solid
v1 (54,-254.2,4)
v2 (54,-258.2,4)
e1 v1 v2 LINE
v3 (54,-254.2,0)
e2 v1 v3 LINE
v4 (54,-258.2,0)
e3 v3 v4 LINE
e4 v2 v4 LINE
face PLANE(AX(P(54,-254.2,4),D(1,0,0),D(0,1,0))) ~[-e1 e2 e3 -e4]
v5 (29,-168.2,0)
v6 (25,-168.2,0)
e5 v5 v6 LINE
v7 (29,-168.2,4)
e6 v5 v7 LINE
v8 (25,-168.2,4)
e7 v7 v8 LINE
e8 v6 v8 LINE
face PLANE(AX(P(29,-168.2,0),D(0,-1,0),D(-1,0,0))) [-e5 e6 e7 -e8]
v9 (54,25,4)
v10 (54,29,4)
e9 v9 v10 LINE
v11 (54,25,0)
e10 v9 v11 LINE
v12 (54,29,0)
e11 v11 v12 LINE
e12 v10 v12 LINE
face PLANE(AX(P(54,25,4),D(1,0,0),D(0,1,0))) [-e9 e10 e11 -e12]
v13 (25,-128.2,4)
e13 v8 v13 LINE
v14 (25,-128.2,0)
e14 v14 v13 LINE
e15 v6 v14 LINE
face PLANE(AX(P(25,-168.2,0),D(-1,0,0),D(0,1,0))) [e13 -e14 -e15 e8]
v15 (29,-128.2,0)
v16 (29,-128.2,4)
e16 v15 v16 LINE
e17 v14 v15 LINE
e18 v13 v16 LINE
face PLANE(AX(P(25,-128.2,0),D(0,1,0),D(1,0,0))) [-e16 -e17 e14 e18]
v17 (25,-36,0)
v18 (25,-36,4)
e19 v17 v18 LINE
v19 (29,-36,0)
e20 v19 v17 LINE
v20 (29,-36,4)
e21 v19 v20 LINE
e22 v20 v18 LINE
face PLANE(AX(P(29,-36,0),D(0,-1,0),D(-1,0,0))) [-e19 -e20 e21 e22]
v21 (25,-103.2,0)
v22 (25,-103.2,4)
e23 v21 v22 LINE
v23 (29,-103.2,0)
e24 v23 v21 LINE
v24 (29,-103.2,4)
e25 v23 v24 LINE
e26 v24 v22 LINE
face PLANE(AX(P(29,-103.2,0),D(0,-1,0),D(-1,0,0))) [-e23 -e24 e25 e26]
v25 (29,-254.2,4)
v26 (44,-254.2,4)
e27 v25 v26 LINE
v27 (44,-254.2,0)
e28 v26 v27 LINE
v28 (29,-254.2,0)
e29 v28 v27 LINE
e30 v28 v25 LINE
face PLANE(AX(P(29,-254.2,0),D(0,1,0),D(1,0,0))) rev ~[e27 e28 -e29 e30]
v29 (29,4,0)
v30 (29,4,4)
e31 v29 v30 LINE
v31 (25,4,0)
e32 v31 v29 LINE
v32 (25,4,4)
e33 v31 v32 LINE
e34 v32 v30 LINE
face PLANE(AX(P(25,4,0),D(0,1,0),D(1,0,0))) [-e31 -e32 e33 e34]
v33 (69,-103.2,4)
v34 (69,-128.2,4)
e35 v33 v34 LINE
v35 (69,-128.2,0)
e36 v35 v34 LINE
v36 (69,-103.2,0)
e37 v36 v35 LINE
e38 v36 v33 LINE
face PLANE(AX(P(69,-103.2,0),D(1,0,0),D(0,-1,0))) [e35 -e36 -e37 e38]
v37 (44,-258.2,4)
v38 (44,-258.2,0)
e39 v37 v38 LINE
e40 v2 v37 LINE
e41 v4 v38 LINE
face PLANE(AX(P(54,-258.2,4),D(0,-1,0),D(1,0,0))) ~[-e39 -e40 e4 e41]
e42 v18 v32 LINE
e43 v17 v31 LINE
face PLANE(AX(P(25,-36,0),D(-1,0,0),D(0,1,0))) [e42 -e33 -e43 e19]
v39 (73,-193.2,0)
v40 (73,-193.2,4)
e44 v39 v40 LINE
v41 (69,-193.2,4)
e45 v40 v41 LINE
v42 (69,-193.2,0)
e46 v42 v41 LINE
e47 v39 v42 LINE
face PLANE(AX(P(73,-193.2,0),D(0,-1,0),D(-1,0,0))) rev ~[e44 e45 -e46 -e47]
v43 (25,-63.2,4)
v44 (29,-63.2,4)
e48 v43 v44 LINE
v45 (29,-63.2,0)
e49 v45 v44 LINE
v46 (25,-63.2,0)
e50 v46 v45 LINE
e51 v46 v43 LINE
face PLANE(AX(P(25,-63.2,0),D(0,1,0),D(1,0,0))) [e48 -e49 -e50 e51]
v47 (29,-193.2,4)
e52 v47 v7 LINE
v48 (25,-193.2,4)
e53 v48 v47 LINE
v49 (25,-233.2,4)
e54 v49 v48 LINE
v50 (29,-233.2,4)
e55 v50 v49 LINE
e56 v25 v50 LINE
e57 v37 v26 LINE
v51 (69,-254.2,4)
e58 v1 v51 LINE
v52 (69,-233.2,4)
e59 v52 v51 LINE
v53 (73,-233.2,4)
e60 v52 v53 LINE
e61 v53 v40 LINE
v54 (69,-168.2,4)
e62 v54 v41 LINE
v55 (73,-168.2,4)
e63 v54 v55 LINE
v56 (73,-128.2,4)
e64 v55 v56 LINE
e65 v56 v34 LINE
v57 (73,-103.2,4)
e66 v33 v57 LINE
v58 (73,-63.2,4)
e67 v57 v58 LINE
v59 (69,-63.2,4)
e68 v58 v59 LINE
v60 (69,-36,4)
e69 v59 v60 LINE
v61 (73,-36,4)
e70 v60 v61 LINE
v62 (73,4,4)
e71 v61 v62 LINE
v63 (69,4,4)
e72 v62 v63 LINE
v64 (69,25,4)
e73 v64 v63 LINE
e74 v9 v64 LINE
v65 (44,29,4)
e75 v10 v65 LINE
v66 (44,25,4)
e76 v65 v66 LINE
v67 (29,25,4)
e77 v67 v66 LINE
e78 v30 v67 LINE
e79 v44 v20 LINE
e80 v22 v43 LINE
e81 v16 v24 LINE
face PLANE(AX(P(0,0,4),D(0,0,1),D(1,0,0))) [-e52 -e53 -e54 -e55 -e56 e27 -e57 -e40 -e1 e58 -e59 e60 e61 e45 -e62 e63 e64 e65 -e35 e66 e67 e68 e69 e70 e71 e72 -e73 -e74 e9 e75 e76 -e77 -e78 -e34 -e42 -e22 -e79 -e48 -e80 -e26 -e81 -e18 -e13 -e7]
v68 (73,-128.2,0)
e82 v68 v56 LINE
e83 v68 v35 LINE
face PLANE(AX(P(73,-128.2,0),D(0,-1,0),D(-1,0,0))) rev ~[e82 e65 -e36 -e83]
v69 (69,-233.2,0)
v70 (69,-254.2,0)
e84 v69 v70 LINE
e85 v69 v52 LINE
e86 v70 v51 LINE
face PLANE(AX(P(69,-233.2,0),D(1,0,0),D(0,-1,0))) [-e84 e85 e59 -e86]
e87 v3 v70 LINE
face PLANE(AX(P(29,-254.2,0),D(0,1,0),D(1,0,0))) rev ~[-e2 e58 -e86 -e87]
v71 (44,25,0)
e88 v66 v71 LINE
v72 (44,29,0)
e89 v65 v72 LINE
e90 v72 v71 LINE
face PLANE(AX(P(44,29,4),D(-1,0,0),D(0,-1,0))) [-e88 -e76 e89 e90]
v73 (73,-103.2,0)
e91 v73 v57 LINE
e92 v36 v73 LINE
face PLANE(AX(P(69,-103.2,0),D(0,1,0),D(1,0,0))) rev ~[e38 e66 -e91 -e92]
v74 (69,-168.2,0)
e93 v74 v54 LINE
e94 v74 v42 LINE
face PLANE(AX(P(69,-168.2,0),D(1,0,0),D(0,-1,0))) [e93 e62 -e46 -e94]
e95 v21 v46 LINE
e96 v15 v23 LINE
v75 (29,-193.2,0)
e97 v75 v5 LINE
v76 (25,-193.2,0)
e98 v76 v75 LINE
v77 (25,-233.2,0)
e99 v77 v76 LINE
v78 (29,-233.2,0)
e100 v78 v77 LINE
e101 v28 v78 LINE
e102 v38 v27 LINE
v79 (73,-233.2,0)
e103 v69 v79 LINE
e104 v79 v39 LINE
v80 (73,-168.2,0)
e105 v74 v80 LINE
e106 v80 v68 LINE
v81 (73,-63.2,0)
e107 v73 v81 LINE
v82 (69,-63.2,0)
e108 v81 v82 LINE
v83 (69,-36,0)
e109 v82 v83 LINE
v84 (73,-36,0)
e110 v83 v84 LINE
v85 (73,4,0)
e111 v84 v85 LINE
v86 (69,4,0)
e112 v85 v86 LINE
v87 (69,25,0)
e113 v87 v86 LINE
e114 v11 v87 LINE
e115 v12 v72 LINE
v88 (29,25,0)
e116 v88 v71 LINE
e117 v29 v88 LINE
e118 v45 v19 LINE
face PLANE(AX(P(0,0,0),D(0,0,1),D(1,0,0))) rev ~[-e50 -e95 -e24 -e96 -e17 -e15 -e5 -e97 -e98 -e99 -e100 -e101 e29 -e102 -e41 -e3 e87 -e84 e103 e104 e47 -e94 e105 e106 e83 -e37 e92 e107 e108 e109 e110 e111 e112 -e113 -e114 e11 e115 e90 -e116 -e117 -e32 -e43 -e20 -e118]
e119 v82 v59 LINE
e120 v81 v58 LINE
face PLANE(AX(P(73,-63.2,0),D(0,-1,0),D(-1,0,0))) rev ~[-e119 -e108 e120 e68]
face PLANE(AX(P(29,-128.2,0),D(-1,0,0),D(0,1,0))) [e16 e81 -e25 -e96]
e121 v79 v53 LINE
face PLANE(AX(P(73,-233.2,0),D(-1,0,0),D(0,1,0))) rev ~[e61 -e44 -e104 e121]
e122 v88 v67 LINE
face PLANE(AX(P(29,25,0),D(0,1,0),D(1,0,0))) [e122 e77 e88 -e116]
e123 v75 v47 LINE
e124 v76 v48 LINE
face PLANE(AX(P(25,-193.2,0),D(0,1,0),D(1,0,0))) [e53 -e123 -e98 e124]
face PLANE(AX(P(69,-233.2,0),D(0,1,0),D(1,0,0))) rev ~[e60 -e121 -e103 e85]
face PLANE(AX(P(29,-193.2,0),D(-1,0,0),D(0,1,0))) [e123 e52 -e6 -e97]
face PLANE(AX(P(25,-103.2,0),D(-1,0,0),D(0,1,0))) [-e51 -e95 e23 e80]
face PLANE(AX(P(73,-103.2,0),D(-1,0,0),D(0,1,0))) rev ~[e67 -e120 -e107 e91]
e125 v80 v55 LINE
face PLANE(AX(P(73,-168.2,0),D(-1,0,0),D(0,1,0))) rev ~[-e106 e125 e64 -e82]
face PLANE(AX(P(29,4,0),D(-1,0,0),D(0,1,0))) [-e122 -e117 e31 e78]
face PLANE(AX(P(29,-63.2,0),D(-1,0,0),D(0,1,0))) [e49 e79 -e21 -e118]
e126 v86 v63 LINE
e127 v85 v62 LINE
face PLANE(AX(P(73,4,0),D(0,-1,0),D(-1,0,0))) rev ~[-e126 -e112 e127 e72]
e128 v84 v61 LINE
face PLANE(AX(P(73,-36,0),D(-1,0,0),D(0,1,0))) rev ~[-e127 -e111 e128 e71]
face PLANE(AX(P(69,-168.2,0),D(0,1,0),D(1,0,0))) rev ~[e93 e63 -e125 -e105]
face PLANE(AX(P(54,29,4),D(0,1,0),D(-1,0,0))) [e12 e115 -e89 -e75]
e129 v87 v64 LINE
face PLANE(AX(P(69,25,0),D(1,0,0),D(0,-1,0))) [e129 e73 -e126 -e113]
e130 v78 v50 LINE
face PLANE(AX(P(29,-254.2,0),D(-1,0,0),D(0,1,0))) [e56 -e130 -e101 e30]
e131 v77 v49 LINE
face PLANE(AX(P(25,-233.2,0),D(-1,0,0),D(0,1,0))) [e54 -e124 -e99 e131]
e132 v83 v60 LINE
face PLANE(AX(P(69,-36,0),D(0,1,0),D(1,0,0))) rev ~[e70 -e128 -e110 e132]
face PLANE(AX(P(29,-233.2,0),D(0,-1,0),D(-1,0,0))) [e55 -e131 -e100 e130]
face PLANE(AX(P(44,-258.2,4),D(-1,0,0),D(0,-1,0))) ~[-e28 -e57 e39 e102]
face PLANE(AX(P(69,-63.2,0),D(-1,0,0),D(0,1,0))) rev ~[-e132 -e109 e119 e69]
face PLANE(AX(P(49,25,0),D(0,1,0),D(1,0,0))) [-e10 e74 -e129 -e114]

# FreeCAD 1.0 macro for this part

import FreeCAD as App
import Part
import Sketcher
from FreeCAD import Vector
Q = App.Units.Quantity

doc = App.newDocument("Part")
params = doc.addObject("Spreadsheet::Sheet", "Params")
for row, (alias, value) in enumerate([
    ("sketch1_width", "40 mm"),
    ("sketch1_width2", "4 mm"),
    ("sketch1_height", "21 mm"),
    ("sketch1_height2", "25 mm"),
    ("sketch1_height3", "27.2 mm"),
    ("pad1_length", "4 mm"),
    ("sketch2_width", "10 mm"),
    ("sketch2_height", "4 mm"),
    ("pad2_length", "4 mm"),
], start=1):
    params.set(f"A{row}", alias)
    params.set(f"B{row}", "=" + value)
    params.setAlias(f"B{row}", alias)

body = doc.addObject("PartDesign::Body", "Body")

# Sketch on XY plane
sketch1 = body.newObject("Sketcher::SketchObject", "Sketch")
sketch1.AttachmentSupport = (doc.getObject("XY_Plane"), [""])
sketch1.MapMode = "FlatFace"
sketch1.addGeometry(Part.LineSegment(Vector(29, -233.2, 0), Vector(29, -254.2, 0)), False)
sketch1.addGeometry(Part.LineSegment(Vector(29, -254.2, 0), Vector(69, -254.2, 0)), False)
sketch1.addGeometry(Part.LineSegment(Vector(69, -254.2, 0), Vector(69, -233.2, 0)), False)
sketch1.addGeometry(Part.LineSegment(Vector(69, -233.2, 0), Vector(73, -233.2, 0)), False)
sketch1.addGeometry(Part.LineSegment(Vector(73, -233.2, 0), Vector(73, -193.2, 0)), False)
sketch1.addGeometry(Part.LineSegment(Vector(73, -193.2, 0), Vector(69, -193.2, 0)), False)
sketch1.addGeometry(Part.LineSegment(Vector(69, -193.2, 0), Vector(69, -168.2, 0)), False)
sketch1.addGeometry(Part.LineSegment(Vector(69, -168.2, 0), Vector(73, -168.2, 0)), False)
sketch1.addGeometry(Part.LineSegment(Vector(73, -168.2, 0), Vector(73, -128.2, 0)), False)
sketch1.addGeometry(Part.LineSegment(Vector(73, -128.2, 0), Vector(69, -128.2, 0)), False)
sketch1.addGeometry(Part.LineSegment(Vector(69, -128.2, 0), Vector(69, -103.2, 0)), False)
sketch1.addGeometry(Part.LineSegment(Vector(69, -103.2, 0), Vector(73, -103.2, 0)), False)
sketch1.addGeometry(Part.LineSegment(Vector(73, -103.2, 0), Vector(73, -63.2, 0)), False)
sketch1.addGeometry(Part.LineSegment(Vector(73, -63.2, 0), Vector(69, -63.2, 0)), False)
sketch1.addGeometry(Part.LineSegment(Vector(69, -63.2, 0), Vector(69, -36, 0)), False)
sketch1.addGeometry(Part.LineSegment(Vector(69, -36, 0), Vector(73, -36, 0)), False)
sketch1.addGeometry(Part.LineSegment(Vector(73, -36, 0), Vector(73, 4, 0)), False)
sketch1.addGeometry(Part.LineSegment(Vector(73, 4, 0), Vector(69, 4, 0)), False)
sketch1.addGeometry(Part.LineSegment(Vector(69, 4, 0), Vector(69, 25, 0)), False)
sketch1.addGeometry(Part.LineSegment(Vector(69, 25, 0), Vector(29, 25, 0)), False)
sketch1.addGeometry(Part.LineSegment(Vector(29, 25, 0), Vector(29, 4, 0)), False)
sketch1.addGeometry(Part.LineSegment(Vector(29, 4, 0), Vector(25, 4, 0)), False)
sketch1.addGeometry(Part.LineSegment(Vector(25, 4, 0), Vector(25, -36, 0)), False)
sketch1.addGeometry(Part.LineSegment(Vector(25, -36, 0), Vector(29, -36, 0)), False)
sketch1.addGeometry(Part.LineSegment(Vector(29, -36, 0), Vector(29, -63.2, 0)), False)
sketch1.addGeometry(Part.LineSegment(Vector(29, -63.2, 0), Vector(25, -63.2, 0)), False)
sketch1.addGeometry(Part.LineSegment(Vector(25, -63.2, 0), Vector(25, -103.2, 0)), False)
sketch1.addGeometry(Part.LineSegment(Vector(25, -103.2, 0), Vector(29, -103.2, 0)), False)
sketch1.addGeometry(Part.LineSegment(Vector(29, -103.2, 0), Vector(29, -128.2, 0)), False)
sketch1.addGeometry(Part.LineSegment(Vector(29, -128.2, 0), Vector(25, -128.2, 0)), False)
sketch1.addGeometry(Part.LineSegment(Vector(25, -128.2, 0), Vector(25, -168.2, 0)), False)
sketch1.addGeometry(Part.LineSegment(Vector(25, -168.2, 0), Vector(29, -168.2, 0)), False)
sketch1.addGeometry(Part.LineSegment(Vector(29, -168.2, 0), Vector(29, -193.2, 0)), False)
sketch1.addGeometry(Part.LineSegment(Vector(29, -193.2, 0), Vector(25, -193.2, 0)), False)
sketch1.addGeometry(Part.LineSegment(Vector(25, -193.2, 0), Vector(25, -233.2, 0)), False)
sketch1.addGeometry(Part.LineSegment(Vector(25, -233.2, 0), Vector(29, -233.2, 0)), False)
sketch1.addConstraint(Sketcher.Constraint("Coincident", 0, 2, 1, 1))
sketch1.addConstraint(Sketcher.Constraint("Coincident", 1, 2, 2, 1))
sketch1.addConstraint(Sketcher.Constraint("Coincident", 2, 2, 3, 1))
sketch1.addConstraint(Sketcher.Constraint("Coincident", 3, 2, 4, 1))
sketch1.addConstraint(Sketcher.Constraint("Coincident", 4, 2, 5, 1))
sketch1.addConstraint(Sketcher.Constraint("Coincident", 5, 2, 6, 1))
sketch1.addConstraint(Sketcher.Constraint("Coincident", 6, 2, 7, 1))
sketch1.addConstraint(Sketcher.Constraint("Coincident", 7, 2, 8, 1))
sketch1.addConstraint(Sketcher.Constraint("Coincident", 8, 2, 9, 1))
sketch1.addConstraint(Sketcher.Constraint("Coincident", 9, 2, 10, 1))
sketch1.addConstraint(Sketcher.Constraint("Coincident", 10, 2, 11, 1))
sketch1.addConstraint(Sketcher.Constraint("Coincident", 11, 2, 12, 1))
sketch1.addConstraint(Sketcher.Constraint("Coincident", 12, 2, 13, 1))
sketch1.addConstraint(Sketcher.Constraint("Coincident", 13, 2, 14, 1))
sketch1.addConstraint(Sketcher.Constraint("Coincident", 14, 2, 15, 1))
sketch1.addConstraint(Sketcher.Constraint("Coincident", 15, 2, 16, 1))
sketch1.addConstraint(Sketcher.Constraint("Coincident", 16, 2, 17, 1))
sketch1.addConstraint(Sketcher.Constraint("Coincident", 17, 2, 18, 1))
sketch1.addConstraint(Sketcher.Constraint("Coincident", 18, 2, 19, 1))
sketch1.addConstraint(Sketcher.Constraint("Coincident", 19, 2, 20, 1))
sketch1.addConstraint(Sketcher.Constraint("Coincident", 20, 2, 21, 1))
sketch1.addConstraint(Sketcher.Constraint("Coincident", 21, 2, 22, 1))
sketch1.addConstraint(Sketcher.Constraint("Coincident", 22, 2, 23, 1))
sketch1.addConstraint(Sketcher.Constraint("Coincident", 23, 2, 24, 1))
sketch1.addConstraint(Sketcher.Constraint("Coincident", 24, 2, 25, 1))
sketch1.addConstraint(Sketcher.Constraint("Coincident", 25, 2, 26, 1))
sketch1.addConstraint(Sketcher.Constraint("Coincident", 26, 2, 27, 1))
sketch1.addConstraint(Sketcher.Constraint("Coincident", 27, 2, 28, 1))
sketch1.addConstraint(Sketcher.Constraint("Coincident", 28, 2, 29, 1))
sketch1.addConstraint(Sketcher.Constraint("Coincident", 29, 2, 30, 1))
sketch1.addConstraint(Sketcher.Constraint("Coincident", 30, 2, 31, 1))
sketch1.addConstraint(Sketcher.Constraint("Coincident", 31, 2, 32, 1))
sketch1.addConstraint(Sketcher.Constraint("Coincident", 32, 2, 33, 1))
sketch1.addConstraint(Sketcher.Constraint("Coincident", 33, 2, 34, 1))
sketch1.addConstraint(Sketcher.Constraint("Coincident", 34, 2, 35, 1))
sketch1.addConstraint(Sketcher.Constraint("Coincident", 35, 2, 0, 1))
sketch1.addConstraint(Sketcher.Constraint("Vertical", 0))
sketch1.addConstraint(Sketcher.Constraint("Horizontal", 1))
sketch1.addConstraint(Sketcher.Constraint("Vertical", 2))
sketch1.addConstraint(Sketcher.Constraint("Horizontal", 3))
sketch1.addConstraint(Sketcher.Constraint("Vertical", 4))
sketch1.addConstraint(Sketcher.Constraint("Horizontal", 5))
sketch1.addConstraint(Sketcher.Constraint("Vertical", 6))
sketch1.addConstraint(Sketcher.Constraint("Horizontal", 7))
sketch1.addConstraint(Sketcher.Constraint("Vertical", 8))
sketch1.addConstraint(Sketcher.Constraint("Horizontal", 9))
sketch1.addConstraint(Sketcher.Constraint("Vertical", 10))
sketch1.addConstraint(Sketcher.Constraint("Horizontal", 11))
sketch1.addConstraint(Sketcher.Constraint("Vertical", 12))
sketch1.addConstraint(Sketcher.Constraint("Horizontal", 13))
sketch1.addConstraint(Sketcher.Constraint("Vertical", 14))
sketch1.addConstraint(Sketcher.Constraint("Horizontal", 15))
sketch1.addConstraint(Sketcher.Constraint("Vertical", 16))
sketch1.addConstraint(Sketcher.Constraint("Horizontal", 17))
sketch1.addConstraint(Sketcher.Constraint("Vertical", 18))
sketch1.addConstraint(Sketcher.Constraint("Horizontal", 19))
sketch1.addConstraint(Sketcher.Constraint("Vertical", 20))
sketch1.addConstraint(Sketcher.Constraint("Horizontal", 21))
sketch1.addConstraint(Sketcher.Constraint("Vertical", 22))
sketch1.addConstraint(Sketcher.Constraint("Horizontal", 23))
sketch1.addConstraint(Sketcher.Constraint("Vertical", 24))
sketch1.addConstraint(Sketcher.Constraint("Horizontal", 25))
sketch1.addConstraint(Sketcher.Constraint("Vertical", 26))
sketch1.addConstraint(Sketcher.Constraint("Horizontal", 27))
sketch1.addConstraint(Sketcher.Constraint("Vertical", 28))
sketch1.addConstraint(Sketcher.Constraint("Horizontal", 29))
sketch1.addConstraint(Sketcher.Constraint("Vertical", 30))
sketch1.addConstraint(Sketcher.Constraint("Horizontal", 31))
sketch1.addConstraint(Sketcher.Constraint("Vertical", 32))
sketch1.addConstraint(Sketcher.Constraint("Horizontal", 33))
sketch1.addConstraint(Sketcher.Constraint("Vertical", 34))
sketch1.addConstraint(Sketcher.Constraint("Horizontal", 35))
sketch1.addConstraint(Sketcher.Constraint("Horizontal", 17, 2, 20, 2))
sketch1.addConstraint(Sketcher.Constraint("Horizontal", 15, 2, 22, 2))
sketch1.addConstraint(Sketcher.Constraint("Horizontal", 13, 2, 24, 2))
sketch1.addConstraint(Sketcher.Constraint("Horizontal", 11, 2, 26, 2))
sketch1.addConstraint(Sketcher.Constraint("Horizontal", 9, 2, 28, 2))
sketch1.addConstraint(Sketcher.Constraint("Horizontal", 7, 2, 30, 2))
sketch1.addConstraint(Sketcher.Constraint("Horizontal", 5, 2, 32, 2))
sketch1.addConstraint(Sketcher.Constraint("Horizontal", 3, 2, 34, 2))
sketch1.addConstraint(Sketcher.Constraint("Vertical", 2, 2, 5, 2))
sketch1.addConstraint(Sketcher.Constraint("Vertical", 4, 2, 7, 2))
sketch1.addConstraint(Sketcher.Constraint("Vertical", 6, 2, 9, 2))
sketch1.addConstraint(Sketcher.Constraint("Vertical", 8, 2, 11, 2))
sketch1.addConstraint(Sketcher.Constraint("Vertical", 10, 2, 13, 2))
sketch1.addConstraint(Sketcher.Constraint("Vertical", 12, 2, 15, 2))
sketch1.addConstraint(Sketcher.Constraint("Vertical", 14, 2, 17, 2))
sketch1.addConstraint(Sketcher.Constraint("Vertical", 0, 2, 19, 2))
sketch1.addConstraint(Sketcher.Constraint("Vertical", 20, 2, 23, 2))
sketch1.addConstraint(Sketcher.Constraint("Vertical", 22, 2, 25, 2))
sketch1.addConstraint(Sketcher.Constraint("Vertical", 24, 2, 27, 2))
sketch1.addConstraint(Sketcher.Constraint("Vertical", 26, 2, 29, 2))
sketch1.addConstraint(Sketcher.Constraint("Vertical", 28, 2, 31, 2))
sketch1.addConstraint(Sketcher.Constraint("Vertical", 30, 2, 33, 2))
sketch1.addConstraint(Sketcher.Constraint("Equal", 17, 21))
sketch1.addConstraint(Sketcher.Constraint("Equal", 19, 4))
sketch1.addConstraint(Sketcher.Constraint("Equal", 4, 8))
sketch1.addConstraint(Sketcher.Constraint("Equal", 6, 10))
sketch1.addConstraint(Sketcher.Constraint("Equal", 8, 12))
sketch1.addConstraint(Sketcher.Constraint("Equal", 12, 16))
sketch1.addConstraint(Sketcher.Constraint("Equal", 2, 18))
sketch1.addConstraint(Sketcher.Constraint("DistanceX", 1, 1, 1, 2, Q("40 mm")))
sketch1.addConstraint(Sketcher.Constraint("DistanceX", 3, 1, 3, 2, Q("4 mm")))
sketch1.addConstraint(Sketcher.Constraint("DistanceY", -1, 1, 16, 2, Q("4 mm")))
sketch1.addConstraint(Sketcher.Constraint("DistanceY", 0, 2, 0, 1, Q("21 mm")))
sketch1.addConstraint(Sketcher.Constraint("DistanceY", 6, 1, 6, 2, Q("25 mm")))
sketch1.addConstraint(Sketcher.Constraint("DistanceY", 14, 1, 14, 2, Q("27.2 mm")))
sketch1.addConstraint(Sketcher.Constraint("DistanceX", -1, 1, 0, 2, Q("29 mm")))
sketch1.setExpression("Constraints[101]", "Params.sketch1_width")
sketch1.setExpression("Constraints[102]", "Params.sketch1_width2")
sketch1.setExpression("Constraints[104]", "Params.sketch1_height")
sketch1.setExpression("Constraints[105]", "Params.sketch1_height2")
sketch1.setExpression("Constraints[106]", "Params.sketch1_height3")
pad1 = body.newObject("PartDesign::Pad", "Pad")
pad1.Profile = sketch1
pad1.setExpression("Length", "Params.pad1_length")

# Sketch on XY plane
sketch2 = body.newObject("Sketcher::SketchObject", "Sketch001")
sketch2.AttachmentSupport = (doc.getObject("XY_Plane"), [""])
sketch2.MapMode = "FlatFace"
sketch2.AttachmentOffset = App.Placement(Vector(0, 0, 4), App.Rotation())
sketch2.addGeometry(Part.LineSegment(Vector(44, 29, 0), Vector(44, 25, 0)), False)
sketch2.addGeometry(Part.LineSegment(Vector(44, 25, 0), Vector(54, 25, 0)), False)
sketch2.addGeometry(Part.LineSegment(Vector(54, 25, 0), Vector(54, 29, 0)), False)
sketch2.addGeometry(Part.LineSegment(Vector(54, 29, 0), Vector(44, 29, 0)), False)
sketch2.addConstraint(Sketcher.Constraint("Coincident", 0, 2, 1, 1))
sketch2.addConstraint(Sketcher.Constraint("Coincident", 1, 2, 2, 1))
sketch2.addConstraint(Sketcher.Constraint("Coincident", 2, 2, 3, 1))
sketch2.addConstraint(Sketcher.Constraint("Coincident", 3, 2, 0, 1))
sketch2.addConstraint(Sketcher.Constraint("Vertical", 0))
sketch2.addConstraint(Sketcher.Constraint("Horizontal", 1))
sketch2.addConstraint(Sketcher.Constraint("Vertical", 2))
sketch2.addConstraint(Sketcher.Constraint("Horizontal", 3))
sketch2.addConstraint(Sketcher.Constraint("DistanceX", 1, 1, 1, 2, Q("10 mm")))
sketch2.addConstraint(Sketcher.Constraint("DistanceY", 0, 2, 0, 1, Q("4 mm")))
sketch2.addConstraint(Sketcher.Constraint("DistanceX", -1, 1, 0, 2, Q("44 mm")))
sketch2.addConstraint(Sketcher.Constraint("DistanceY", -1, 1, 0, 2, Q("25 mm")))
sketch2.setExpression("Constraints[8]", "Params.sketch2_width")
sketch2.setExpression("Constraints[9]", "Params.sketch2_height")
pad2 = body.newObject("PartDesign::Pad", "Pad001")
pad2.Profile = sketch2
pad2.setExpression("Length", "Params.pad2_length")
pad2.Reversed = True
doc.recompute()

datumplane = body.newObject("PartDesign::Plane", "DatumPlane")
datumplane.AttachmentSupport = (doc.getObject("XZ_Plane"), [""])
datumplane.MapMode = "FlatFace"
datumplane.AttachmentOffset = App.Placement(Vector(0, 0, 114.6), App.Rotation())
mirrored = body.newObject("PartDesign::Mirrored", "Mirrored")
mirrored.Originals = [pad2]
mirrored.MirrorPlane = (datumplane, [""])
body.Tip = mirrored

doc.recompute()
